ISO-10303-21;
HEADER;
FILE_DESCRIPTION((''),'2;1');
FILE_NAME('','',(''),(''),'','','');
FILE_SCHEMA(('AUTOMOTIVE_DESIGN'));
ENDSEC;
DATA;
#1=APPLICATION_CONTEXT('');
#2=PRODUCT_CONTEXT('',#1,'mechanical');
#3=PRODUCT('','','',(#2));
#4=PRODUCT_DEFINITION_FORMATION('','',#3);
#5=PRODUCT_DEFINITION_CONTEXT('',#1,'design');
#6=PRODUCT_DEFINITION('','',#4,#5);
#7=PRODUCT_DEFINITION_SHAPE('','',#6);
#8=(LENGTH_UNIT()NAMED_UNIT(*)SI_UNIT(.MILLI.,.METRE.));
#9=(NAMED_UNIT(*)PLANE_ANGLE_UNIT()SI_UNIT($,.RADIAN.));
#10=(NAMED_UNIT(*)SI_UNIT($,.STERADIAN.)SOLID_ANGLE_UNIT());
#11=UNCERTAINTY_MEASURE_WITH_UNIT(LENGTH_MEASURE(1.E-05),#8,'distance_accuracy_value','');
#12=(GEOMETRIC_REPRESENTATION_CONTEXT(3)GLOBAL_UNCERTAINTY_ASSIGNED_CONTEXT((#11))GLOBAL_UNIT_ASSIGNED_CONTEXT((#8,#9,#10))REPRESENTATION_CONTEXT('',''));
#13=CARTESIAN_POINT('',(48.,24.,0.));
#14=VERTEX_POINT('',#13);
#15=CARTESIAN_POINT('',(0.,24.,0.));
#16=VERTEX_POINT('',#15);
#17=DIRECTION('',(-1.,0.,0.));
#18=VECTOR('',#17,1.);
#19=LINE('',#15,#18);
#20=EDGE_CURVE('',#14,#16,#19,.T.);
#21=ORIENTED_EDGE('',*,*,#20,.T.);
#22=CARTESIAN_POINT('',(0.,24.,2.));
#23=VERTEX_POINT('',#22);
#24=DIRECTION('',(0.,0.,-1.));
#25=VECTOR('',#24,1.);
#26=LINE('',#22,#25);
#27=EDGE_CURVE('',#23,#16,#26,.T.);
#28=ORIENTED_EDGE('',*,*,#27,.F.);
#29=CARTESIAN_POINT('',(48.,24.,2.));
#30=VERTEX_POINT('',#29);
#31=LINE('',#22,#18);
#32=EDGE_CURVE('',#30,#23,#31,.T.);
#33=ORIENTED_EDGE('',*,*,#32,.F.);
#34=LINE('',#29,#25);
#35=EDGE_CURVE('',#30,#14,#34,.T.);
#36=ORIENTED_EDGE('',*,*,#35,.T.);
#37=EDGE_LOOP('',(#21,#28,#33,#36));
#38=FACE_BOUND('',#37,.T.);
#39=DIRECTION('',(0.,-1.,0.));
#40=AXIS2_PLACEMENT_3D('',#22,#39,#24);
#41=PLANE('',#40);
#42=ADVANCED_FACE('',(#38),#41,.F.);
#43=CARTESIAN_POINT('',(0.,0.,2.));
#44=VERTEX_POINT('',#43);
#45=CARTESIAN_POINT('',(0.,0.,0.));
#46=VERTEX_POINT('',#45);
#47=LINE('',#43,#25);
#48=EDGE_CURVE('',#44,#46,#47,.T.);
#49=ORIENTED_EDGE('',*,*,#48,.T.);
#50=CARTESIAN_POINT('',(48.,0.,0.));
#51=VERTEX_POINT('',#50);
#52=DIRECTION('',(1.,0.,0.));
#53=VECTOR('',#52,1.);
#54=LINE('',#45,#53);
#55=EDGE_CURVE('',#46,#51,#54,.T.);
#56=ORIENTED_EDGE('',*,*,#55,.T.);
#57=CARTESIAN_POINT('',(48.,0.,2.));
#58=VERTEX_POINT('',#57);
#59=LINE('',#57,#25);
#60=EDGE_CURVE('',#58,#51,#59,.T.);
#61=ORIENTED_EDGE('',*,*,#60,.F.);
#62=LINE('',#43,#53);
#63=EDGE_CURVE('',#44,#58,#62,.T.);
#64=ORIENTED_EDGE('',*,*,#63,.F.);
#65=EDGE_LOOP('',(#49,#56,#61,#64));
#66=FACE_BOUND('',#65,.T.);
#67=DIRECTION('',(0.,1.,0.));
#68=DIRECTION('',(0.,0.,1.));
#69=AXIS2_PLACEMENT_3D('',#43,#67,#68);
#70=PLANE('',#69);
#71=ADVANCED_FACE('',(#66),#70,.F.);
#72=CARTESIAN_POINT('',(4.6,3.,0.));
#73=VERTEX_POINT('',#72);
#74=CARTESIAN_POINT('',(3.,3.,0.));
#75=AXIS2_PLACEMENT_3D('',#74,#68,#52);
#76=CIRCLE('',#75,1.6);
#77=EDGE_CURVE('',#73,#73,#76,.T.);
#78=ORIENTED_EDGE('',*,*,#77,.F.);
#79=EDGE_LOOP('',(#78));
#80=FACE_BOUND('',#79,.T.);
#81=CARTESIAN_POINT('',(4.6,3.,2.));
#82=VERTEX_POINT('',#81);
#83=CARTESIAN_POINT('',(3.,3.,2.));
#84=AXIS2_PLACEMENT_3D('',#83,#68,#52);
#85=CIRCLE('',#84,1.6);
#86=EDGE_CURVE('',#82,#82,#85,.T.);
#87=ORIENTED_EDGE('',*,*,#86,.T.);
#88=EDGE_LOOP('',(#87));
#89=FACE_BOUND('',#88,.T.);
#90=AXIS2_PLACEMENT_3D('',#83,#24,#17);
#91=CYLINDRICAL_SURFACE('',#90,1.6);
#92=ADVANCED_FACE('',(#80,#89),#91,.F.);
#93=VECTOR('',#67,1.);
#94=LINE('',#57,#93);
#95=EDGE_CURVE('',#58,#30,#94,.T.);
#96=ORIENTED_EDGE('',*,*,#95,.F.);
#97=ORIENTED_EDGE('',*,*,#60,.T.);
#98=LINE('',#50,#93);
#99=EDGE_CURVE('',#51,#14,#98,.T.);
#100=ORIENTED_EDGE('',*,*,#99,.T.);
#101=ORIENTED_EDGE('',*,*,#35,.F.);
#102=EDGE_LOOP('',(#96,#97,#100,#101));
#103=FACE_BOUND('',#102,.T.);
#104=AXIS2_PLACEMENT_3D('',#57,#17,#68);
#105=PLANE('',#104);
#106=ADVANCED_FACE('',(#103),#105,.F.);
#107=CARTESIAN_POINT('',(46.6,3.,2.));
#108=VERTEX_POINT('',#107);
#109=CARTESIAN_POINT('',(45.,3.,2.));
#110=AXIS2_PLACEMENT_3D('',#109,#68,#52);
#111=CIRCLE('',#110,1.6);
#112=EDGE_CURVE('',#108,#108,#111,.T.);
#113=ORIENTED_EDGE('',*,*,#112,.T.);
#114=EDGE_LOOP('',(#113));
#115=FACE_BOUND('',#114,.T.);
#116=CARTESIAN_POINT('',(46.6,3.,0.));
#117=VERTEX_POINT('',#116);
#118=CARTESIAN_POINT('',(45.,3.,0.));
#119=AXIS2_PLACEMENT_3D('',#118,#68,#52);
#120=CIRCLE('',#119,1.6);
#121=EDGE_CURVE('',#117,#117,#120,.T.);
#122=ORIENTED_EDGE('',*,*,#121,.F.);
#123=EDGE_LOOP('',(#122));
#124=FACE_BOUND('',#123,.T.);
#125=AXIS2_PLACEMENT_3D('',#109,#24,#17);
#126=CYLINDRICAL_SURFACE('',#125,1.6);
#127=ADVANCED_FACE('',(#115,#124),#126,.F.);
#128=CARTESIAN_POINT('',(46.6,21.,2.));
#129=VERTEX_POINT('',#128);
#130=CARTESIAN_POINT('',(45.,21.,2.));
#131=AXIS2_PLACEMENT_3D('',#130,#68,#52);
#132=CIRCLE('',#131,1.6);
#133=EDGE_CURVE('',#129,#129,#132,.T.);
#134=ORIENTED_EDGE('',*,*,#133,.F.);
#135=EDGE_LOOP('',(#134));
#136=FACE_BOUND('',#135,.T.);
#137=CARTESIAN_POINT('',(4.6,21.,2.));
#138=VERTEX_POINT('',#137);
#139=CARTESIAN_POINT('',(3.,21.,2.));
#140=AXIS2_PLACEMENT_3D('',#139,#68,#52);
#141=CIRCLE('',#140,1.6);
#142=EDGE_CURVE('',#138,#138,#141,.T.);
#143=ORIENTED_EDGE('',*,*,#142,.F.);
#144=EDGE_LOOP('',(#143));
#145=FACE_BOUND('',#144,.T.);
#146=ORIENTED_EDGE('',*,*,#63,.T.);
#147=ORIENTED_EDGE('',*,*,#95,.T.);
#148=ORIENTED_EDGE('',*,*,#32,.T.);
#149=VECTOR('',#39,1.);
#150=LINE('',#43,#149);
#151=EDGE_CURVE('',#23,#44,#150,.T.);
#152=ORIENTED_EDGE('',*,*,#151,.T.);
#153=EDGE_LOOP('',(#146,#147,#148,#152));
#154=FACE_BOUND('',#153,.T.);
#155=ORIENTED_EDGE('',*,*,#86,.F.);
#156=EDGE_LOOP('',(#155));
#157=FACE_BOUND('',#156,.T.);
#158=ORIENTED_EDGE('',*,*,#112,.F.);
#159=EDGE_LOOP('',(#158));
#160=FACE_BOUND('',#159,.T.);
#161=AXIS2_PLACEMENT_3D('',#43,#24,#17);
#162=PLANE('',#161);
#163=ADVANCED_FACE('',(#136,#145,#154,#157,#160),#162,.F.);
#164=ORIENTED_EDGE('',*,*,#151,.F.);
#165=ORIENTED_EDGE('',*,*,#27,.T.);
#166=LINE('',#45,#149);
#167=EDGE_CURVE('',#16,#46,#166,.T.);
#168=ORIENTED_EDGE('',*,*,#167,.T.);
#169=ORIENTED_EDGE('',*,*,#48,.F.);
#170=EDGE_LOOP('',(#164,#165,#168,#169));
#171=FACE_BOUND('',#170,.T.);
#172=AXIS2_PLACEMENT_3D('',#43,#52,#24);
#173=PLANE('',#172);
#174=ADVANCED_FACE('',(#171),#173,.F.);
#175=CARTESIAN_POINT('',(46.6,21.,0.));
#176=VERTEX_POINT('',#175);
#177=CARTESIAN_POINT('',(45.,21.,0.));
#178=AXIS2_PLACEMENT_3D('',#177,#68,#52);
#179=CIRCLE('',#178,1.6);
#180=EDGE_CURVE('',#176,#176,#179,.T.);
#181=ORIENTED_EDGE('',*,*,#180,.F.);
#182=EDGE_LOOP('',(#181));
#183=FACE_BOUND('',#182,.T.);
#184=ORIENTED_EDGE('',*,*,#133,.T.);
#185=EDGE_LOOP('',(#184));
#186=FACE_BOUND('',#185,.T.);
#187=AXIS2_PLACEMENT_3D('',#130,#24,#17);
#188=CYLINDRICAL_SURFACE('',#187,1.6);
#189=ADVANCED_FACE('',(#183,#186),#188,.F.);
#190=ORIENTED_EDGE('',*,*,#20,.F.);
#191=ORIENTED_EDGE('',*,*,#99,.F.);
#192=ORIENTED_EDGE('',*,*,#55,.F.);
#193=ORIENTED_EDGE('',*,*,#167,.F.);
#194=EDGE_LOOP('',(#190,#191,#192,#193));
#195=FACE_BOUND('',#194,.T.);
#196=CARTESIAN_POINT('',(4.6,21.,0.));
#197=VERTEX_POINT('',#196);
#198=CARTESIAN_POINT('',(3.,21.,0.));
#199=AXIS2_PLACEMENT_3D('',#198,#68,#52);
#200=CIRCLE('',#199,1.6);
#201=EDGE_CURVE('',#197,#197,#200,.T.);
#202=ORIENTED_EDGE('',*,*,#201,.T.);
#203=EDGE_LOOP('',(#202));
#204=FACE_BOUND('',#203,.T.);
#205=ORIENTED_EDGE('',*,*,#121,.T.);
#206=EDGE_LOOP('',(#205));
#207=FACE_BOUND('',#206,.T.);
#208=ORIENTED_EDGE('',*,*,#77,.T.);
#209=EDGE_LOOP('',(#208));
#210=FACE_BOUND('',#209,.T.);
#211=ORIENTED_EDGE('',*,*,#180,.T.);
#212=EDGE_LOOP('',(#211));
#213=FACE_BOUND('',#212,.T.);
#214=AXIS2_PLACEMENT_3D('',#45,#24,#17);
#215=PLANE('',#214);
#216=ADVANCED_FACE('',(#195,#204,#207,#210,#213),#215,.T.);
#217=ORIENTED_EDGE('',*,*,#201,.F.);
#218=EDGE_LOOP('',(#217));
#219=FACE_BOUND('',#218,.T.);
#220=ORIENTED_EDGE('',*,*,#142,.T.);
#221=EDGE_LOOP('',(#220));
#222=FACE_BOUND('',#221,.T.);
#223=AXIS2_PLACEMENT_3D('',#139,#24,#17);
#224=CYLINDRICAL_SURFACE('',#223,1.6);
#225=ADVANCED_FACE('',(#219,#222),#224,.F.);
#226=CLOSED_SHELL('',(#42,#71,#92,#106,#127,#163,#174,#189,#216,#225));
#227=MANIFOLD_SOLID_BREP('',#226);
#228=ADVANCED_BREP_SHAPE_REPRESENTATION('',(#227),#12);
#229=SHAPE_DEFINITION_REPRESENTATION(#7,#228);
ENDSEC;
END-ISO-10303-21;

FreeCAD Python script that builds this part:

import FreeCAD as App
import Part
import Sketcher
from FreeCAD import Vector


def add_polygon(sketch, points):
    """Adds a closed chain of lines whose ends are joined by coincident constraints."""
    first, n = sketch.GeometryCount, len(points)
    for a, b in zip(points, points[1:] + points[:1]):
        sketch.addGeometry(Part.LineSegment(App.Vector(*a, 0), App.Vector(*b, 0)), False)
    for i in range(n):
        sketch.addConstraint(Sketcher.Constraint("Coincident", first + i, 2, first + (i + 1) % n, 1))

doc = App.newDocument("Part")
body = doc.addObject("PartDesign::Body", "Body")

# Sketch on XY plane
sketch1 = doc.addObject("Sketcher::SketchObject", "Sketch")
body.addObject(sketch1)
sketch1.AttachmentSupport = (doc.XY_Plane, [""])
sketch1.MapMode = "FlatFace"
add_polygon(sketch1, [(0, 24), (0, 0), (48, 0), (48, 24)])  # lines 0-3
sketch1.addGeometry(Part.Circle(Vector(3, 3, 0), Vector(0, 0, 1), 1.6), False)  # 4
sketch1.addGeometry(Part.Circle(Vector(45, 3, 0), Vector(0, 0, 1), 1.6), False)  # 5
sketch1.addGeometry(Part.Circle(Vector(3, 21, 0), Vector(0, 0, 1), 1.6), False)  # 6
sketch1.addGeometry(Part.Circle(Vector(45, 21, 0), Vector(0, 0, 1), 1.6), False)  # 7
sketch1.addConstraint(Sketcher.Constraint("Vertical", 0))
sketch1.addConstraint(Sketcher.Constraint("Horizontal", 1))
sketch1.addConstraint(Sketcher.Constraint("Vertical", 2))
sketch1.addConstraint(Sketcher.Constraint("Horizontal", 3))
sketch1.addConstraint(Sketcher.Constraint("Coincident", 0, 2, -1, 1))
sketch1.addConstraint(Sketcher.Constraint("Equal", 4, 5))
sketch1.addConstraint(Sketcher.Constraint("Equal", 5, 6))
sketch1.addConstraint(Sketcher.Constraint("Equal", 6, 7))
sketch1.addConstraint(Sketcher.Constraint("Horizontal", 4, 3, 5, 3))
sketch1.addConstraint(Sketcher.Constraint("Horizontal", 6, 3, 7, 3))
sketch1.addConstraint(Sketcher.Constraint("Vertical", 4, 3, 6, 3))
sketch1.addConstraint(Sketcher.Constraint("Vertical", 5, 3, 7, 3))
sketch1.addConstraint(Sketcher.Constraint("Diameter", 4, 3.2))
sketch1.addConstraint(Sketcher.Constraint("DistanceX", 1, 1, 1, 2, 48.0))
sketch1.addConstraint(Sketcher.Constraint("DistanceY", 0, 2, 0, 1, 24.0))
sketch1.addConstraint(Sketcher.Constraint("DistanceX", -1, 1, 4, 3, 3.0))
sketch1.addConstraint(Sketcher.Constraint("DistanceY", -1, 1, 4, 3, 3.0))
sketch1.addConstraint(Sketcher.Constraint("DistanceX", -1, 1, 5, 3, 45.0))
sketch1.addConstraint(Sketcher.Constraint("DistanceY", -1, 1, 6, 3, 21.0))
pad1 = doc.addObject("PartDesign::Pad", "Pad")
body.addObject(pad1)
pad1.Profile = sketch1
pad1.Length = 2

doc.recompute()
